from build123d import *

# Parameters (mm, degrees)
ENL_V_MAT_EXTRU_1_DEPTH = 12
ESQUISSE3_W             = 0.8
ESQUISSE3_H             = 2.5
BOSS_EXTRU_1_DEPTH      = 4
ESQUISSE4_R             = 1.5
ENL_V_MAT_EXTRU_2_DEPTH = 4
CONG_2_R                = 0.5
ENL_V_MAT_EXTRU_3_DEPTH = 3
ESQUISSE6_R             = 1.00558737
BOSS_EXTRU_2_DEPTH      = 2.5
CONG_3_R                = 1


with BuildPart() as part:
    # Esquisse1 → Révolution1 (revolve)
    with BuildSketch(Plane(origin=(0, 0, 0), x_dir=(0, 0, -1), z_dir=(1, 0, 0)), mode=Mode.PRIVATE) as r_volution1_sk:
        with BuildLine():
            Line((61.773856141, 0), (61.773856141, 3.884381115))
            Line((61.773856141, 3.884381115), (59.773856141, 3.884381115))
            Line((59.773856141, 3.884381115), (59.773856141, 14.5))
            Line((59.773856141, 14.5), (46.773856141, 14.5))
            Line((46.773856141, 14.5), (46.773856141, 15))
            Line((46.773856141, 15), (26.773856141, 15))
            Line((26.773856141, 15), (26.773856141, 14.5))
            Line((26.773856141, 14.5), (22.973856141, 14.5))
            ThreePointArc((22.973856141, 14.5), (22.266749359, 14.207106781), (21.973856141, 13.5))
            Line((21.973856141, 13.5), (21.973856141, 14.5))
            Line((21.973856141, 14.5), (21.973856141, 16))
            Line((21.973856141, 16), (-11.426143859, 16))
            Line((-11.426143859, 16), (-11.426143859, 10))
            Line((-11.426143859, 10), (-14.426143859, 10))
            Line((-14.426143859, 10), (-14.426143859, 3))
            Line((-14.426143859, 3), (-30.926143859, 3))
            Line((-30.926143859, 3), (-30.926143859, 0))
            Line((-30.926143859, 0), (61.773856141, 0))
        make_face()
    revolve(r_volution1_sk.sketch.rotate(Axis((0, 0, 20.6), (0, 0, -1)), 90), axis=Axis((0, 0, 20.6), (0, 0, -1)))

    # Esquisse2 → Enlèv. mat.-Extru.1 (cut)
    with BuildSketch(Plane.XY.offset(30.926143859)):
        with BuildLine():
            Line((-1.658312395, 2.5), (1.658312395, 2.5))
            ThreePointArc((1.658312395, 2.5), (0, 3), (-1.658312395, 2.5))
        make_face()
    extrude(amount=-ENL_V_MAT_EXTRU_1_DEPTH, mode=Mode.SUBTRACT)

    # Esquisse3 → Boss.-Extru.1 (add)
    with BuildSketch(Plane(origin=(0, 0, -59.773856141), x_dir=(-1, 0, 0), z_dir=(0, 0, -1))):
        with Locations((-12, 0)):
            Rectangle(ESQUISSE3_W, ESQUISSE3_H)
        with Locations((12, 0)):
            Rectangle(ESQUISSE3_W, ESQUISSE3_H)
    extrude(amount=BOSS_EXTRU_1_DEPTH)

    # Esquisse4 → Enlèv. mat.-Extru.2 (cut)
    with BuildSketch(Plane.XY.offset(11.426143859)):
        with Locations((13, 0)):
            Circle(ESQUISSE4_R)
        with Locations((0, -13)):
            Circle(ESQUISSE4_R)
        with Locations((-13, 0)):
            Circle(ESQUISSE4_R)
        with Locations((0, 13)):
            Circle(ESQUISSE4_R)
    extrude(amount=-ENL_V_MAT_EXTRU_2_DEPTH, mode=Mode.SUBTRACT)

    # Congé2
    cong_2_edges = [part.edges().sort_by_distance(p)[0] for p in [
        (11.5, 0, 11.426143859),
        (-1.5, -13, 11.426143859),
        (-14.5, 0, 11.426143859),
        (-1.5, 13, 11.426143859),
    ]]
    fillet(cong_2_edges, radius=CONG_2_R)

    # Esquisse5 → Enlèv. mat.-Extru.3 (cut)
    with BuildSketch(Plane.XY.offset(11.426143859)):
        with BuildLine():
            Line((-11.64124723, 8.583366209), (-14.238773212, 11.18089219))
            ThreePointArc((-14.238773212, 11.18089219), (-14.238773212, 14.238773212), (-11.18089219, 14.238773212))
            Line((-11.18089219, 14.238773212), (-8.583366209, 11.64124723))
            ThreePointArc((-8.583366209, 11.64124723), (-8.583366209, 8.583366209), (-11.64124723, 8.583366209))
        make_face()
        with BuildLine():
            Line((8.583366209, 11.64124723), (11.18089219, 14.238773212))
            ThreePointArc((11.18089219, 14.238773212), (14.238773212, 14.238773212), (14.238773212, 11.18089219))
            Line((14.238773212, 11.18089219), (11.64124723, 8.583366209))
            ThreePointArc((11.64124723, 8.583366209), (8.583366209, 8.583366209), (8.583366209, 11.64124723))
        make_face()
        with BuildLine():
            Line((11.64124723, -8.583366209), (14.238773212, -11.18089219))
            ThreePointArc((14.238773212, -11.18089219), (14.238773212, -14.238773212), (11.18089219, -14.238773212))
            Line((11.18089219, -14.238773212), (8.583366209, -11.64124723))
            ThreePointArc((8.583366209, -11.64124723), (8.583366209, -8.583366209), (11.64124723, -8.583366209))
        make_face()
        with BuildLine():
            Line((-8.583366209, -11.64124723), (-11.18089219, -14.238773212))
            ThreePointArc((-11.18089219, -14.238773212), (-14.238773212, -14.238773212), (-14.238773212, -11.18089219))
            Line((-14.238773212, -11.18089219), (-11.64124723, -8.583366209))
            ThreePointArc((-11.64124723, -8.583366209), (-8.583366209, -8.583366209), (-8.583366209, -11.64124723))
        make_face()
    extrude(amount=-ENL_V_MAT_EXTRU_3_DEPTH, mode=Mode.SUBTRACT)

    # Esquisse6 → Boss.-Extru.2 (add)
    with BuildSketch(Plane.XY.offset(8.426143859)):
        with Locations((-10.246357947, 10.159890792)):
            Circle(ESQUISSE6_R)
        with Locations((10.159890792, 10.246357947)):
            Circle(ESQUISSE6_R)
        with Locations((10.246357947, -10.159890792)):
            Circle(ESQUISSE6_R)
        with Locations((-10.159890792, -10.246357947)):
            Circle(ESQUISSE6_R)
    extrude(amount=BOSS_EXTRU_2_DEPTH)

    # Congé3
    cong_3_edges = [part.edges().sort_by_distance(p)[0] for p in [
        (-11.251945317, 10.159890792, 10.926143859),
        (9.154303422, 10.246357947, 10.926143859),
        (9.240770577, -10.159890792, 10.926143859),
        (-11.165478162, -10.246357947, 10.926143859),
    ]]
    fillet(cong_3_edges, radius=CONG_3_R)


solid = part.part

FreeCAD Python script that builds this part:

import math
import FreeCAD as App
import Part
import Sketcher
from FreeCAD import Vector
Q = App.Units.Quantity


def edges_at(feature, points):
    """Names of the edges that pass closest to the given points."""
    edges = feature.Shape.Edges
    near = lambda p: min(range(len(edges)), key=lambda i: edges[i].distToShape(Part.Vertex(*p))[0])
    return sorted({f"Edge{near(p) + 1}" for p in points})

doc = App.newDocument("Part")
body = doc.addObject("PartDesign::Body", "Body")

sketch1 = body.newObject("Sketcher::SketchObject", "Sketch")
sketch1.AttachmentSupport = (doc.getObject("YZ_Plane"), [""])
sketch1.MapMode = "FlatFace"
sketch1.addGeometry([
    Part.LineSegment(Vector(0, -61.8, 0), Vector(3.9, -61.8, 0)),
    Part.LineSegment(Vector(3.9, -61.8, 0), Vector(3.9, -59.8, 0)),
    Part.LineSegment(Vector(3.9, -59.8, 0), Vector(14.5, -59.8, 0)),
    Part.LineSegment(Vector(14.5, -59.8, 0), Vector(14.5, -46.8, 0)),
    Part.LineSegment(Vector(14.5, -46.8, 0), Vector(15, -46.8, 0)),
    Part.LineSegment(Vector(15, -46.8, 0), Vector(15, -26.8, 0)),
    Part.LineSegment(Vector(15, -26.8, 0), Vector(14.5, -26.8, 0)),
    Part.LineSegment(Vector(14.5, -26.8, 0), Vector(14.5, -23, 0)),
    Part.ArcOfCircle(Part.Circle(Vector(13.5, -23, 0), Vector(0, 0, 1), 1), math.radians(0), math.radians(90)),
    Part.LineSegment(Vector(13.5, -22, 0), Vector(16, -22, 0)),
    Part.LineSegment(Vector(16, -22, 0), Vector(16, 11.4, 0)),
    Part.LineSegment(Vector(16, 11.4, 0), Vector(10, 11.4, 0)),
    Part.LineSegment(Vector(10, 11.4, 0), Vector(10, 14.4, 0)),
    Part.LineSegment(Vector(10, 14.4, 0), Vector(3, 14.4, 0)),
    Part.LineSegment(Vector(3, 14.4, 0), Vector(3, 30.9, 0)),
    Part.LineSegment(Vector(3, 30.9, 0), Vector(0, 30.9, 0)),
    Part.LineSegment(Vector(0, 30.9, 0), Vector(0, -61.8, 0)),
], False)
sketch1.addConstraint([
    Sketcher.Constraint("Coincident", 0, 2, 1, 1),
    Sketcher.Constraint("Coincident", 1, 2, 2, 1),
    Sketcher.Constraint("Coincident", 2, 2, 3, 1),
    Sketcher.Constraint("Coincident", 3, 2, 4, 1),
    Sketcher.Constraint("Coincident", 4, 2, 5, 1),
    Sketcher.Constraint("Coincident", 5, 2, 6, 1),
    Sketcher.Constraint("Coincident", 6, 2, 7, 1),
    Sketcher.Constraint("Tangent", 7, 2, 8, 1),
    Sketcher.Constraint("Tangent", 8, 2, 9, 1),
    Sketcher.Constraint("Coincident", 9, 2, 10, 1),
    Sketcher.Constraint("Coincident", 10, 2, 11, 1),
    Sketcher.Constraint("Coincident", 11, 2, 12, 1),
    Sketcher.Constraint("Coincident", 12, 2, 13, 1),
    Sketcher.Constraint("Coincident", 13, 2, 14, 1),
    Sketcher.Constraint("Coincident", 14, 2, 15, 1),
    Sketcher.Constraint("Coincident", 15, 2, 16, 1),
    Sketcher.Constraint("Coincident", 16, 2, 0, 1),
    Sketcher.Constraint("Horizontal", 0),
    Sketcher.Constraint("Vertical", 1),
    Sketcher.Constraint("Horizontal", 2),
    Sketcher.Constraint("Vertical", 3),
    Sketcher.Constraint("Horizontal", 4),
    Sketcher.Constraint("Vertical", 5),
    Sketcher.Constraint("Horizontal", 6),
    Sketcher.Constraint("Vertical", 7),
    Sketcher.Constraint("Horizontal", 9),
    Sketcher.Constraint("Vertical", 10),
    Sketcher.Constraint("Horizontal", 11),
    Sketcher.Constraint("Vertical", 12),
    Sketcher.Constraint("Horizontal", 13),
    Sketcher.Constraint("Vertical", 14),
    Sketcher.Constraint("Horizontal", 15),
    Sketcher.Constraint("Vertical", 16),
    Sketcher.Constraint("PointOnObject", 15, 2, -2),
    Sketcher.Constraint("Vertical", 3, 2, 6, 2),
    Sketcher.Constraint("Equal", 15, 12),
    Sketcher.Constraint("Radius", 8, Q("1 mm")),
    Sketcher.Constraint("DistanceX", 11, 2, 11, 1, Q("6 mm")),
    Sketcher.Constraint("DistanceX", 13, 2, 13, 1, Q("7 mm")),
    Sketcher.Constraint("DistanceX", 15, 2, 15, 1, Q("3 mm")),
    Sketcher.Constraint("DistanceY", 1, 1, 1, 2, Q("2 mm")),
    Sketcher.Constraint("DistanceY", 3, 1, 3, 2, Q("13 mm")),
    Sketcher.Constraint("DistanceY", 5, 1, 5, 2, Q("20 mm")),
    Sketcher.Constraint("DistanceX", 4, 1, 4, 2, Q("0.5 mm")),
    Sketcher.Constraint("DistanceX", 9, 1, 9, 2, Q("2.5 mm")),
    Sketcher.Constraint("DistanceY", 7, 1, 7, 2, Q("3.8 mm")),
    Sketcher.Constraint("DistanceY", 10, 1, 10, 2, Q("33.4 mm")),
    Sketcher.Constraint("DistanceY", 14, 1, 14, 2, Q("16.5 mm")),
    Sketcher.Constraint("DistanceX", 0, 1, 0, 2, Q("3.884381 mm")),
    Sketcher.Constraint("DistanceY", 8, 3, -1, 1, Q("22.973856 mm")),
])
revolution = body.newObject("PartDesign::Revolution", "Revolution")
revolution.Profile = sketch1
revolution.ReferenceAxis = (sketch1, ["V_Axis"])
revolution.Angle = 360

sketch2 = body.newObject("Sketcher::SketchObject", "Sketch001")
sketch2.AttachmentSupport = (doc.getObject("XY_Plane"), [""])
sketch2.MapMode = "FlatFace"
sketch2.AttachmentOffset = App.Placement(Vector(0, 0, 30.926144), App.Rotation())
sketch2.addGeometry([
    Part.LineSegment(Vector(-1.7, 2.5, 0), Vector(1.7, 2.5, 0)),
    Part.ArcOfCircle(Part.Circle(Vector(0, 0, 0), Vector(0, 0, 1), 3), math.radians(56), math.radians(124)),
], False)
sketch2.addConstraint([
    Sketcher.Constraint("Coincident", 0, 1, 1, 2),
    Sketcher.Constraint("Coincident", 1, 1, 0, 2),
    Sketcher.Constraint("Horizontal", 0),
    Sketcher.Constraint("Coincident", 1, 3, -1, 1),
    Sketcher.Constraint("Radius", 1, Q("3 mm")),
    Sketcher.Constraint("DistanceY", -1, 1, 0, 1, Q("2.5 mm")),
])
pocket1 = body.newObject("PartDesign::Pocket", "Pocket")
pocket1.Profile = sketch2
pocket1.Length = 12

sketch3 = body.newObject("Sketcher::SketchObject", "Sketch002")
sketch3.AttachmentSupport = (doc.getObject("XY_Plane"), [""])
sketch3.MapMode = "FlatFace"
sketch3.AttachmentOffset = App.Placement(Vector(0, 0, -59.773856), App.Rotation())
sketch3.addGeometry([
    Part.LineSegment(Vector(12.4, 1.2, 0), Vector(12.4, -1.2, 0)),
    Part.LineSegment(Vector(12.4, -1.2, 0), Vector(11.6, -1.2, 0)),
    Part.LineSegment(Vector(11.6, -1.2, 0), Vector(11.6, 1.2, 0)),
    Part.LineSegment(Vector(11.6, 1.2, 0), Vector(12.4, 1.2, 0)),
    Part.LineSegment(Vector(-11.6, 1.2, 0), Vector(-11.6, -1.2, 0)),
    Part.LineSegment(Vector(-11.6, -1.2, 0), Vector(-12.4, -1.2, 0)),
    Part.LineSegment(Vector(-12.4, -1.2, 0), Vector(-12.4, 1.2, 0)),
    Part.LineSegment(Vector(-12.4, 1.2, 0), Vector(-11.6, 1.2, 0)),
], False)
sketch3.addConstraint([
    Sketcher.Constraint("Coincident", 0, 2, 1, 1),
    Sketcher.Constraint("Coincident", 1, 2, 2, 1),
    Sketcher.Constraint("Coincident", 2, 2, 3, 1),
    Sketcher.Constraint("Coincident", 3, 2, 0, 1),
    Sketcher.Constraint("Coincident", 4, 2, 5, 1),
    Sketcher.Constraint("Coincident", 5, 2, 6, 1),
    Sketcher.Constraint("Coincident", 6, 2, 7, 1),
    Sketcher.Constraint("Coincident", 7, 2, 4, 1),
    Sketcher.Constraint("Vertical", 0),
    Sketcher.Constraint("Horizontal", 1),
    Sketcher.Constraint("Vertical", 2),
    Sketcher.Constraint("Horizontal", 3),
    Sketcher.Constraint("Vertical", 4),
    Sketcher.Constraint("Horizontal", 5),
    Sketcher.Constraint("Vertical", 6),
    Sketcher.Constraint("Horizontal", 7),
    Sketcher.Constraint("Symmetric", 2, 2, 4, 2, -1, 1),
    Sketcher.Constraint("Symmetric", 0, 2, 6, 2, -1, 1),
    Sketcher.Constraint("Horizontal", 1, 2, 4, 2),
    Sketcher.Constraint("DistanceX", 1, 2, 1, 1, Q("0.8 mm")),
    Sketcher.Constraint("DistanceY", 0, 2, 0, 1, Q("2.5 mm")),
    Sketcher.Constraint("DistanceX", 4, 2, 0, 2, Q("24 mm")),
])
pad1 = body.newObject("PartDesign::Pad", "Pad")
pad1.Profile = sketch3
pad1.Length = 4
pad1.Reversed = True

sketch4 = body.newObject("Sketcher::SketchObject", "Sketch003")
sketch4.AttachmentSupport = (doc.getObject("XY_Plane"), [""])
sketch4.MapMode = "FlatFace"
sketch4.AttachmentOffset = App.Placement(Vector(0, 0, 11.426144), App.Rotation())
sketch4.addGeometry([
    Part.Circle(Vector(13, 0, 0), Vector(0, 0, 1), 1.5),
    Part.Circle(Vector(0, -13, 0), Vector(0, 0, 1), 1.5),
    Part.Circle(Vector(-13, 0, 0), Vector(0, 0, 1), 1.5),
    Part.Circle(Vector(0, 13, 0), Vector(0, 0, 1), 1.5),
], False)
sketch4.addConstraint([
    Sketcher.Constraint("Equal", 0, 1),
    Sketcher.Constraint("Equal", 1, 2),
    Sketcher.Constraint("Equal", 2, 3),
    Sketcher.Constraint("Symmetric", 0, 3, 2, 3, -1, 1),
    Sketcher.Constraint("Symmetric", 1, 3, 3, 3, -1, 1),
    Sketcher.Constraint("PointOnObject", 0, 3, -1),
    Sketcher.Constraint("PointOnObject", 1, 3, -2),
    Sketcher.Constraint("Diameter", 0, Q("3 mm")),
    Sketcher.Constraint("DistanceX", -1, 1, 0, 3, Q("13 mm")),
    Sketcher.Constraint("DistanceY", 1, 3, -1, 1, Q("13 mm")),
])
pocket2 = body.newObject("PartDesign::Pocket", "Pocket001")
pocket2.Profile = sketch4
pocket2.Length = 4
doc.recompute()

fillet = body.newObject("PartDesign::Fillet", "Fillet")
fillet.Base = (pocket2, edges_at(pocket2, [
    (11.5, 0, 11.426),
    (-1.5, -13, 11.426),
    (-14.5, 0, 11.426),
    (-1.5, 13, 11.426),
]))
fillet.Radius = 0.5

sketch5 = body.newObject("Sketcher::SketchObject", "Sketch004")
sketch5.AttachmentSupport = (doc.getObject("XY_Plane"), [""])
sketch5.MapMode = "FlatFace"
sketch5.AttachmentOffset = App.Placement(Vector(0, 0, 11.426144), App.Rotation())
sketch5.addGeometry([
    Part.LineSegment(Vector(-14.2, 11.2, 0), Vector(-11.6, 8.6, 0)),
    Part.ArcOfCircle(Part.Circle(Vector(-10.1, 10.1, 0), Vector(0, 0, 1), 2.2), math.radians(-135), math.radians(45)),
    Part.LineSegment(Vector(-8.6, 11.6, 0), Vector(-11.2, 14.2, 0)),
    Part.ArcOfCircle(Part.Circle(Vector(-12.7, 12.7, 0), Vector(0, 0, 1), 2.2), math.radians(45), math.radians(225)),
    Part.LineSegment(Vector(11.2, 14.2, 0), Vector(8.6, 11.6, 0)),
    Part.ArcOfCircle(Part.Circle(Vector(10.1, 10.1, 0), Vector(0, 0, 1), 2.2), math.radians(135), math.radians(315)),
    Part.LineSegment(Vector(11.6, 8.6, 0), Vector(14.2, 11.2, 0)),
    Part.ArcOfCircle(Part.Circle(Vector(12.7, 12.7, 0), Vector(0, 0, 1), 2.2), math.radians(-45), math.radians(135)),
    Part.LineSegment(Vector(14.2, -11.2, 0), Vector(11.6, -8.6, 0)),
    Part.ArcOfCircle(Part.Circle(Vector(10.1, -10.1, 0), Vector(0, 0, 1), 2.2), math.radians(45), math.radians(225)),
    Part.LineSegment(Vector(8.6, -11.6, 0), Vector(11.2, -14.2, 0)),
    Part.ArcOfCircle(Part.Circle(Vector(12.7, -12.7, 0), Vector(0, 0, 1), 2.2), math.radians(-135), math.radians(45)),
    Part.LineSegment(Vector(-11.2, -14.2, 0), Vector(-8.6, -11.6, 0)),
    Part.ArcOfCircle(Part.Circle(Vector(-10.1, -10.1, 0), Vector(0, 0, 1), 2.2), math.radians(-45), math.radians(135)),
    Part.LineSegment(Vector(-11.6, -8.6, 0), Vector(-14.2, -11.2, 0)),
    Part.ArcOfCircle(Part.Circle(Vector(-12.7, -12.7, 0), Vector(0, 0, 1), 2.2), math.radians(135), math.radians(315)),
], False)
sketch5.addConstraint([
    Sketcher.Constraint("Tangent", 0, 2, 1, 1),
    Sketcher.Constraint("Tangent", 1, 2, 2, 1),
    Sketcher.Constraint("Tangent", 2, 2, 3, 1),
    Sketcher.Constraint("Tangent", 3, 2, 0, 1),
    Sketcher.Constraint("Tangent", 4, 2, 5, 1),
    Sketcher.Constraint("Tangent", 5, 2, 6, 1),
    Sketcher.Constraint("Tangent", 6, 2, 7, 1),
    Sketcher.Constraint("Tangent", 7, 2, 4, 1),
    Sketcher.Constraint("Tangent", 8, 2, 9, 1),
    Sketcher.Constraint("Tangent", 9, 2, 10, 1),
    Sketcher.Constraint("Tangent", 10, 2, 11, 1),
    Sketcher.Constraint("Tangent", 11, 2, 8, 1),
    Sketcher.Constraint("Tangent", 12, 2, 13, 1),
    Sketcher.Constraint("Tangent", 13, 2, 14, 1),
    Sketcher.Constraint("Tangent", 14, 2, 15, 1),
    Sketcher.Constraint("Tangent", 15, 2, 12, 1),
    Sketcher.Constraint("Equal", 1, 3),
    Sketcher.Constraint("Equal", 3, 5),
    Sketcher.Constraint("Equal", 5, 7),
    Sketcher.Constraint("Equal", 7, 9),
    Sketcher.Constraint("Equal", 9, 11),
    Sketcher.Constraint("Equal", 11, 13),
    Sketcher.Constraint("Equal", 13, 15),
    Sketcher.Constraint("Symmetric", 1, 3, 9, 3, -1, 1),
    Sketcher.Constraint("Symmetric", 3, 3, 11, 3, -1, 1),
    Sketcher.Constraint("Symmetric", 5, 3, 13, 3, -1, 1),
    Sketcher.Constraint("Symmetric", 7, 3, 15, 3, -1, 1),
    Sketcher.Constraint("Symmetric", 1, 3, 5, 3, -2),
    Sketcher.Constraint("Symmetric", 3, 3, 7, 3, -2),
    Sketcher.Constraint("Perpendicular", 2, 4),
    Sketcher.Constraint("Radius", 1, Q("2.162248 mm")),
    Sketcher.Constraint("DistanceY", 15, 3, 0, 2, Q("21.293199 mm")),
    Sketcher.Constraint("DistanceX", 1, 2, 7, 3, Q("21.293199 mm")),
    Sketcher.Constraint("Distance", 0, Q("3.673456 mm")),
])
pocket3 = body.newObject("PartDesign::Pocket", "Pocket002")
pocket3.Profile = sketch5
pocket3.Length = 3

sketch6 = body.newObject("Sketcher::SketchObject", "Sketch005")
sketch6.AttachmentSupport = (doc.getObject("XY_Plane"), [""])
sketch6.MapMode = "FlatFace"
sketch6.AttachmentOffset = App.Placement(Vector(0, 0, 8.426144), App.Rotation())
sketch6.addGeometry([
    Part.Circle(Vector(-10.2, 10.2, 0), Vector(0, 0, 1), 1),
    Part.Circle(Vector(10.2, 10.2, 0), Vector(0, 0, 1), 1),
    Part.Circle(Vector(10.2, -10.2, 0), Vector(0, 0, 1), 1),
    Part.Circle(Vector(-10.2, -10.2, 0), Vector(0, 0, 1), 1),
], False)
sketch6.addConstraint([
    Sketcher.Constraint("Equal", 0, 1),
    Sketcher.Constraint("Equal", 1, 2),
    Sketcher.Constraint("Equal", 2, 3),
    Sketcher.Constraint("Symmetric", 0, 3, 2, 3, -1, 1),
    Sketcher.Constraint("Symmetric", 1, 3, 3, 3, -1, 1),
    Sketcher.Constraint("Diameter", 0, Q("2.011175 mm")),
    Sketcher.Constraint("DistanceY", -1, 1, 0, 3, Q("10.159891 mm")),
    Sketcher.Constraint("DistanceX", -1, 1, 1, 3, Q("10.159891 mm")),
    Sketcher.Constraint("DistanceX", 0, 3, 1, 3, Q("20.406249 mm")),
    Sketcher.Constraint("DistanceY", 2, 3, 1, 3, Q("20.406249 mm")),
])
pad2 = body.newObject("PartDesign::Pad", "Pad001")
pad2.Profile = sketch6
pad2.Length = 2.5
doc.recompute()

fillet2 = body.newObject("PartDesign::Fillet", "Fillet001")
fillet2.Base = (pad2, edges_at(pad2, [
    (-11.252, 10.16, 10.926),
    (9.154, 10.246, 10.926),
    (9.241, -10.16, 10.926),
    (-11.165, -10.246, 10.926),
]))
fillet2.Radius = 1

doc.recompute()
